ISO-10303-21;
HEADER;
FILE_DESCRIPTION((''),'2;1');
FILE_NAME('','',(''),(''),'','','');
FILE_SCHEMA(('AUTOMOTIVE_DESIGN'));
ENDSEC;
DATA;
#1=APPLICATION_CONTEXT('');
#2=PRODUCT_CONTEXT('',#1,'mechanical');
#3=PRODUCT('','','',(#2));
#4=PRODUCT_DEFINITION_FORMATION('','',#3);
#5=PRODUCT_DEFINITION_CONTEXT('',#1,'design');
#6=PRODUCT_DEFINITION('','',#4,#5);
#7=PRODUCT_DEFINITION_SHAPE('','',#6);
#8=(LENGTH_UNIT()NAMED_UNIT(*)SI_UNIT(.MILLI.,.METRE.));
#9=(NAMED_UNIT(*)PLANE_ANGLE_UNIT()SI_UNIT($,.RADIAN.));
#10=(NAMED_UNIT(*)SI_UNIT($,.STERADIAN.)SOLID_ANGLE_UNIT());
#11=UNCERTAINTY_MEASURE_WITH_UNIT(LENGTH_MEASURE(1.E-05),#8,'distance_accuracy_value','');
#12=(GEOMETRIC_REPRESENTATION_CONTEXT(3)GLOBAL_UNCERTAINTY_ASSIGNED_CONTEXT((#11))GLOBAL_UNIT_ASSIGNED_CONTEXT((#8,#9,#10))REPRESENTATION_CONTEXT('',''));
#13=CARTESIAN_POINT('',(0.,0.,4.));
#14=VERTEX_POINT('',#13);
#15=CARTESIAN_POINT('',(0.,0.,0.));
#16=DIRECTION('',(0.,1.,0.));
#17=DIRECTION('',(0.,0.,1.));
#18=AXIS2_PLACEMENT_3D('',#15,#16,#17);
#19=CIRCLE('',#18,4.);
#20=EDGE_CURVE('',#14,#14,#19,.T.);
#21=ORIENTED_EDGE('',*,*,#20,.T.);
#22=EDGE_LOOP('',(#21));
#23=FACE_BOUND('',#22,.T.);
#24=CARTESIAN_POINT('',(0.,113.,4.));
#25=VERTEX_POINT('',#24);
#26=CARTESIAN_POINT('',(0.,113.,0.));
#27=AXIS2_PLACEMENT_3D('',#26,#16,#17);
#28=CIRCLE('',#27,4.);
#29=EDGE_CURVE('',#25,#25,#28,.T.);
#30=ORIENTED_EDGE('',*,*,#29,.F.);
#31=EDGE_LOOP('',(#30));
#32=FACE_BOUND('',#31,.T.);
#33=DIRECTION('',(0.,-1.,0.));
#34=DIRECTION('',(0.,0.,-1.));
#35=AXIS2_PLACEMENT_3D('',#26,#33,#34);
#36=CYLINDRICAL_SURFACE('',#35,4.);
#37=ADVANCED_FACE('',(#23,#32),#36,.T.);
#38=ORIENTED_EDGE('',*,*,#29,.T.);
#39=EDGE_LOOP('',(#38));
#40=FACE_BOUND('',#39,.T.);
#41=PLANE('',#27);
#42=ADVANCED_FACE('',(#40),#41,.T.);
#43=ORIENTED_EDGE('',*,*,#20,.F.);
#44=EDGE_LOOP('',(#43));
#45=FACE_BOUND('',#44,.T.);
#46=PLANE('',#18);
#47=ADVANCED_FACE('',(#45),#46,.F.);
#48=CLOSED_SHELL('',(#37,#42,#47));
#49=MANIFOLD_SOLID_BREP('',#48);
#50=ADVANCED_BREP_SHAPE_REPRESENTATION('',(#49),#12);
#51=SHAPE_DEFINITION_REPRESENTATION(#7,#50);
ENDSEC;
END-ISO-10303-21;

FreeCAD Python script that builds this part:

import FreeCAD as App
import Part
import Sketcher
Q = App.Units.Quantity

doc = App.newDocument("Part")
body = doc.addObject("PartDesign::Body", "Body")

sketch1 = body.newObject("Sketcher::SketchObject", "Sketch")
sketch1.AttachmentSupport = (doc.getObject("XZ_Plane"), [""])
sketch1.MapMode = "FlatFace"
sketch1.addGeometry(Part.Circle(App.Vector(0, 0, 0), App.Vector(0, 0, 1), 4), False)
sketch1.addConstraint(Sketcher.Constraint("Coincident", 0, 3, -1, 1))
sketch1.addConstraint(Sketcher.Constraint("Diameter", 0, Q("8 mm")))
pad1 = body.newObject("PartDesign::Pad", "Pad")
pad1.Profile = sketch1
pad1.Length = 113
pad1.Reversed = True

doc.recompute()
